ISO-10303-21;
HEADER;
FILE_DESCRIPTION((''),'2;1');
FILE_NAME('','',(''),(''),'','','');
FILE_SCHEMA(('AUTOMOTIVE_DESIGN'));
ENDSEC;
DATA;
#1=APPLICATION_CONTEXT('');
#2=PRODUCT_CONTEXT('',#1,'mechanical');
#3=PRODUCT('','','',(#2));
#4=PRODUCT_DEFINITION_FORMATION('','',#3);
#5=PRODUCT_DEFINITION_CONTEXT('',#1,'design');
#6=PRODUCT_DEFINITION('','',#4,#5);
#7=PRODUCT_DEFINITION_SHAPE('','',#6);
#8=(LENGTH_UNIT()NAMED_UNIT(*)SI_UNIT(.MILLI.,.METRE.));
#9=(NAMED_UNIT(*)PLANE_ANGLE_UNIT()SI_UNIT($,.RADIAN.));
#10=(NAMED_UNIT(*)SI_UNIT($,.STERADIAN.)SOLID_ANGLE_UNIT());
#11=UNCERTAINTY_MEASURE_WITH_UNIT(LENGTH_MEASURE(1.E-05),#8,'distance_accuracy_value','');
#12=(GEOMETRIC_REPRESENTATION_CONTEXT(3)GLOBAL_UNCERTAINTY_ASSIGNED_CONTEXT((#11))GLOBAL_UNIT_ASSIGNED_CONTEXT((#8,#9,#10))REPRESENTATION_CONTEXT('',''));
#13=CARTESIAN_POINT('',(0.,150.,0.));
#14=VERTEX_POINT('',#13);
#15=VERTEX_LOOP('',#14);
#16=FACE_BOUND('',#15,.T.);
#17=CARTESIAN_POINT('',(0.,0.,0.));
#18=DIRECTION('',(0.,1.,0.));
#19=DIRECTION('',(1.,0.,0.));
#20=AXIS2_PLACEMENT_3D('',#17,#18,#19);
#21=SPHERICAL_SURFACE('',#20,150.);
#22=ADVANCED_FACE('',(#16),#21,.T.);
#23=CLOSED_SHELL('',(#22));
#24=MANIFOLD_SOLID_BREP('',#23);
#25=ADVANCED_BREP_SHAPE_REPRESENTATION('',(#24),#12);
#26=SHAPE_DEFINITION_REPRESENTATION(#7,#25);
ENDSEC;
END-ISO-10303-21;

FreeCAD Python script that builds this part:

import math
import FreeCAD as App
import Part
import Sketcher
from FreeCAD import Vector
Q = App.Units.Quantity

doc = App.newDocument("Part")
body = doc.addObject("PartDesign::Body", "Body")

# Sketch on XY plane
sketch1 = body.newObject("Sketcher::SketchObject", "Sketch")
sketch1.AttachmentSupport = (doc.getObject("XY_Plane"), [""])
sketch1.MapMode = "FlatFace"
sketch1.addGeometry([
    Part.LineSegment(Vector(0, 150, 0), Vector(0, -150, 0)),
    Part.ArcOfCircle(Part.Circle(Vector(0, 0, 0), Vector(0, 0, 1), 150), math.radians(-90), math.radians(90)),
], False)
sketch1.addConstraint([
    Sketcher.Constraint("Coincident", 0, 1, 1, 2),
    Sketcher.Constraint("Coincident", 1, 1, 0, 2),
    Sketcher.Constraint("Vertical", 0),
    Sketcher.Constraint("Coincident", 1, 3, -1, 1),
    Sketcher.Constraint("PointOnObject", 0, 1, -2),
    Sketcher.Constraint("Radius", 1, Q("150 mm")),
])
revolution = body.newObject("PartDesign::Revolution", "Revolution")
revolution.Profile = sketch1
revolution.ReferenceAxis = (sketch1, ["V_Axis"])
revolution.Angle = 360

doc.recompute()
